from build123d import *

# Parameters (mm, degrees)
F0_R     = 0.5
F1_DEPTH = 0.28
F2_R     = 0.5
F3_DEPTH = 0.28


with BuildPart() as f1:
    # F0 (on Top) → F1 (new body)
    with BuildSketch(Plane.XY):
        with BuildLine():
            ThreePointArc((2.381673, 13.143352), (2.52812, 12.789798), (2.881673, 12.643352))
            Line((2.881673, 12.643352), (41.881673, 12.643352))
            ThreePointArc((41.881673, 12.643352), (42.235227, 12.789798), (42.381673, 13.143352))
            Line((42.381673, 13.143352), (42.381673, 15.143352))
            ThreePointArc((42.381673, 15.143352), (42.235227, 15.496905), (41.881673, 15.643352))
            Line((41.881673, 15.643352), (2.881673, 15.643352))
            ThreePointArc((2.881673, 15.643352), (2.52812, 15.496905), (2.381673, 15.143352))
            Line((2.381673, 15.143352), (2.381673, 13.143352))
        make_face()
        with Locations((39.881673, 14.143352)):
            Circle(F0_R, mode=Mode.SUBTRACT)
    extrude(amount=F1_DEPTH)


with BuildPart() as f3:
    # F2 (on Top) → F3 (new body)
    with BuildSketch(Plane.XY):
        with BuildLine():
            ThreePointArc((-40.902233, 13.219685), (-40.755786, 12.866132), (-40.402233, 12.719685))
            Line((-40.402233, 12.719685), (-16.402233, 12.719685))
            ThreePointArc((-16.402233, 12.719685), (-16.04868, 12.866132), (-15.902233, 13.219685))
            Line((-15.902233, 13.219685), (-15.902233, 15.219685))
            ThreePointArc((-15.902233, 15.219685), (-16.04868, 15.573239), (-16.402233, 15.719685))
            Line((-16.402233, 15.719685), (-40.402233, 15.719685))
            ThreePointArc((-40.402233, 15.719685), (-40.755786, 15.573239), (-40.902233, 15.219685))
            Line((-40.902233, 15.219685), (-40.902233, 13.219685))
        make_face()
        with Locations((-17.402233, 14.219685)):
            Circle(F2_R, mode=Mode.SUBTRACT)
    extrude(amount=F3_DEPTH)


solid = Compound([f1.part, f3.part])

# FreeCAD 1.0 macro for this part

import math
import FreeCAD as App
import Part
import Sketcher
Q = App.Units.Quantity

doc = App.newDocument("Part")
params = doc.addObject("Spreadsheet::Sheet", "Params")
for row, (alias, value) in enumerate([
    ("sketch1_diameter", "1 mm"),
    ("sketch1_width", "39 mm"),
    ("sketch1_height", "2 mm"),
    ("pad1_length", "0.28 mm"),
    ("sketch2_diameter", "1 mm"),
    ("sketch2_width", "24 mm"),
    ("sketch2_height", "2 mm"),
    ("pad2_length", "0.28 mm"),
], start=1):
    params.set(f"A{row}", alias)
    params.set(f"B{row}", "=" + value)
    params.setAlias(f"B{row}", alias)

body = doc.addObject("PartDesign::Body", "Body")

# Sketch on XY plane
sketch1 = body.newObject("Sketcher::SketchObject", "Sketch")
sketch1.AttachmentSupport = (doc.getObject("XY_Plane"), [""])
sketch1.MapMode = "FlatFace"
sketch1.addGeometry([
    Part.ArcOfCircle(Part.Circle(App.Vector(2.88, 13.14, 0), App.Vector(0, 0, 1), 0.5), math.radians(180), math.radians(270)),  # 0
    Part.LineSegment(App.Vector(2.88, 12.64, 0), App.Vector(41.88, 12.64, 0)),  # 1
    Part.ArcOfCircle(Part.Circle(App.Vector(41.88, 13.14, 0), App.Vector(0, 0, 1), 0.5), math.radians(-90), math.radians(0)),  # 2
    Part.LineSegment(App.Vector(42.38, 13.14, 0), App.Vector(42.38, 15.14, 0)),  # 3
    Part.ArcOfCircle(Part.Circle(App.Vector(41.88, 15.14, 0), App.Vector(0, 0, 1), 0.5), math.radians(0), math.radians(90)),  # 4
    Part.LineSegment(App.Vector(41.88, 15.64, 0), App.Vector(2.88, 15.64, 0)),  # 5
    Part.ArcOfCircle(Part.Circle(App.Vector(2.88, 15.14, 0), App.Vector(0, 0, 1), 0.5), math.radians(90), math.radians(180)),  # 6
    Part.LineSegment(App.Vector(2.38, 15.14, 0), App.Vector(2.38, 13.14, 0)),  # 7
    Part.Circle(App.Vector(39.88, 14.14, 0), App.Vector(0, 0, 1), 0.5),  # 8
], False)
sketch1.addConstraint([
    Sketcher.Constraint("Tangent", 0, 2, 1, 1),
    Sketcher.Constraint("Coincident", 1, 2, 2, 1),
    Sketcher.Constraint("Coincident", 2, 2, 3, 1),
    Sketcher.Constraint("Tangent", 3, 2, 4, 1),
    Sketcher.Constraint("Tangent", 4, 2, 5, 1),
    Sketcher.Constraint("Coincident", 5, 2, 6, 1),
    Sketcher.Constraint("Coincident", 6, 2, 7, 1),
    Sketcher.Constraint("Tangent", 7, 2, 0, 1),
    Sketcher.Constraint("Horizontal", 1),
    Sketcher.Constraint("Vertical", 3),
    Sketcher.Constraint("Horizontal", 5),
    Sketcher.Constraint("Vertical", 7),
    Sketcher.Constraint("Equal", 0, 2),
    Sketcher.Constraint("Equal", 2, 4),
    Sketcher.Constraint("Equal", 4, 6),
    Sketcher.Constraint("Equal", 6, 8),
    Sketcher.Constraint("Horizontal", 0, 3, 2, 2),
    Sketcher.Constraint("Horizontal", 3, 2, 6, 2),
    Sketcher.Constraint("Vertical", 4, 3, 1, 2),
    Sketcher.Constraint("Vertical", 0, 2, 5, 2),
    Sketcher.Constraint("Diameter", 8, Q("1 mm")),
    Sketcher.Constraint("DistanceX", 1, 1, 1, 2, Q("39 mm")),
    Sketcher.Constraint("DistanceY", 3, 1, 3, 2, Q("2 mm")),
    Sketcher.Constraint("DistanceX", 8, 3, 4, 3, Q("2 mm")),
    Sketcher.Constraint("DistanceY", 8, 3, 4, 3, Q("1 mm")),
    Sketcher.Constraint("DistanceY", -1, 1, 0, 3, Q("13.143352 mm")),
    Sketcher.Constraint("DistanceX", -1, 1, 0, 3, Q("2.881673 mm")),
])
sketch1.setExpression("Constraints[20]", "Params.sketch1_diameter")
sketch1.setExpression("Constraints[21]", "Params.sketch1_width")
sketch1.setExpression("Constraints[22]", "Params.sketch1_height")
pad1 = body.newObject("PartDesign::Pad", "Pad")
pad1.Profile = sketch1
pad1.setExpression("Length", "Params.pad1_length")
body2 = doc.addObject("PartDesign::Body", "Body001")

# Sketch on XY plane
sketch2 = body2.newObject("Sketcher::SketchObject", "Sketch001")
sketch2.AttachmentSupport = (doc.getObject("XY_Plane001"), [""])
sketch2.MapMode = "FlatFace"
sketch2.addGeometry([
    Part.ArcOfCircle(Part.Circle(App.Vector(-40.4, 13.22, 0), App.Vector(0, 0, 1), 0.5), math.radians(-180), math.radians(-90)),  # 0
    Part.LineSegment(App.Vector(-40.4, 12.72, 0), App.Vector(-16.4, 12.72, 0)),  # 1
    Part.ArcOfCircle(Part.Circle(App.Vector(-16.4, 13.22, 0), App.Vector(0, 0, 1), 0.5), math.radians(-90), math.radians(0)),  # 2
    Part.LineSegment(App.Vector(-15.9, 13.22, 0), App.Vector(-15.9, 15.22, 0)),  # 3
    Part.ArcOfCircle(Part.Circle(App.Vector(-16.4, 15.22, 0), App.Vector(0, 0, 1), 0.5), math.radians(0), math.radians(90)),  # 4
    Part.LineSegment(App.Vector(-16.4, 15.72, 0), App.Vector(-40.4, 15.72, 0)),  # 5
    Part.ArcOfCircle(Part.Circle(App.Vector(-40.4, 15.22, 0), App.Vector(0, 0, 1), 0.5), math.radians(90), math.radians(180)),  # 6
    Part.LineSegment(App.Vector(-40.9, 15.22, 0), App.Vector(-40.9, 13.22, 0)),  # 7
    Part.Circle(App.Vector(-17.4, 14.22, 0), App.Vector(0, 0, 1), 0.5),  # 8
], False)
sketch2.addConstraint([
    Sketcher.Constraint("Coincident", 0, 2, 1, 1),
    Sketcher.Constraint("Coincident", 1, 2, 2, 1),
    Sketcher.Constraint("Coincident", 2, 2, 3, 1),
    Sketcher.Constraint("Tangent", 3, 2, 4, 1),
    Sketcher.Constraint("Tangent", 4, 2, 5, 1),
    Sketcher.Constraint("Tangent", 5, 2, 6, 1),
    Sketcher.Constraint("Tangent", 6, 2, 7, 1),
    Sketcher.Constraint("Coincident", 7, 2, 0, 1),
    Sketcher.Constraint("Horizontal", 1),
    Sketcher.Constraint("Vertical", 3),
    Sketcher.Constraint("Horizontal", 5),
    Sketcher.Constraint("Vertical", 7),
    Sketcher.Constraint("Equal", 0, 2),
    Sketcher.Constraint("Equal", 2, 4),
    Sketcher.Constraint("Equal", 4, 6),
    Sketcher.Constraint("Equal", 6, 8),
    Sketcher.Constraint("Horizontal", 0, 3, 2, 2),
    Sketcher.Constraint("Horizontal", 2, 2, 7, 2),
    Sketcher.Constraint("Vertical", 6, 3, 0, 2),
    Sketcher.Constraint("Vertical", 4, 3, 1, 2),
    Sketcher.Constraint("Diameter", 8, Q("1 mm")),
    Sketcher.Constraint("DistanceX", 1, 1, 1, 2, Q("24 mm")),
    Sketcher.Constraint("DistanceY", 3, 1, 3, 2, Q("2 mm")),
    Sketcher.Constraint("DistanceX", 8, 3, 2, 3, Q("0.999999 mm")),
    Sketcher.Constraint("DistanceY", 2, 3, 8, 3, Q("0.999999 mm")),
    Sketcher.Constraint("DistanceX", 0, 3, -1, 1, Q("40.402232 mm")),
    Sketcher.Constraint("DistanceY", -1, 1, 0, 3, Q("13.219686 mm")),
])
sketch2.setExpression("Constraints[20]", "Params.sketch2_diameter")
sketch2.setExpression("Constraints[21]", "Params.sketch2_width")
sketch2.setExpression("Constraints[22]", "Params.sketch2_height")
pad2 = body2.newObject("PartDesign::Pad", "Pad001")
pad2.Profile = sketch2
pad2.setExpression("Length", "Params.pad2_length")

doc.recompute()
